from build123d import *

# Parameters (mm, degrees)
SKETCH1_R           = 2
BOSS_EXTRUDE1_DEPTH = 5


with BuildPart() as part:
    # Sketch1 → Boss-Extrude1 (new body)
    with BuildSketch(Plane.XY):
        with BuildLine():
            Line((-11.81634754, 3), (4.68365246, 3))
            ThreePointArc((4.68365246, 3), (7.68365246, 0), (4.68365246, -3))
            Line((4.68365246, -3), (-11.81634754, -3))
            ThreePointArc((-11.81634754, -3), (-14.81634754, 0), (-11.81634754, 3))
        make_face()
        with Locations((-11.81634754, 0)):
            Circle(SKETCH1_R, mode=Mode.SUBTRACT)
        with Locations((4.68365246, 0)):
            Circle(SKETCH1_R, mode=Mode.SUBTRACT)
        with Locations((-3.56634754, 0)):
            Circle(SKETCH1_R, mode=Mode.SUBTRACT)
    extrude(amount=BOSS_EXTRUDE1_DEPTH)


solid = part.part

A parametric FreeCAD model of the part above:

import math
import FreeCAD as App
import Part
import Sketcher
from FreeCAD import Vector
Q = App.Units.Quantity

doc = App.newDocument("Part")
params = doc.addObject("Spreadsheet::Sheet", "Params")
for row, (alias, value) in enumerate([
    ("sketch1_diameter", "4 mm"),
    ("sketch1_radius", "3 mm"),
    ("sketch1_width", "16.5 mm"),
    ("pad1_length", "5 mm"),
], start=1):
    params.set(f"A{row}", alias)
    params.set(f"B{row}", "=" + value)
    params.setAlias(f"B{row}", alias)

body = doc.addObject("PartDesign::Body", "Body")

sketch1 = body.newObject("Sketcher::SketchObject", "Sketch")
sketch1.AttachmentSupport = (doc.getObject("XY_Plane"), [""])
sketch1.MapMode = "FlatFace"
sketch1.addGeometry(Part.LineSegment(Vector(4.7, 3, 0), Vector(-11.8, 3, 0)), False)
sketch1.addGeometry(Part.ArcOfCircle(Part.Circle(Vector(-11.8, 0, 0), Vector(0, 0, 1), 3), math.radians(90), math.radians(270)), False)
sketch1.addGeometry(Part.LineSegment(Vector(-11.8, -3, 0), Vector(4.7, -3, 0)), False)
sketch1.addGeometry(Part.ArcOfCircle(Part.Circle(Vector(4.7, 0, 0), Vector(0, 0, 1), 3), math.radians(-90), math.radians(90)), False)
sketch1.addGeometry(Part.Circle(Vector(4.7, 0, 0), Vector(0, 0, 1), 2), False)
sketch1.addGeometry(Part.Circle(Vector(-3.6, 0, 0), Vector(0, 0, 1), 2), False)
sketch1.addGeometry(Part.Circle(Vector(-11.8, 0, 0), Vector(0, 0, 1), 2), False)
sketch1.addConstraint(Sketcher.Constraint("Tangent", 0, 2, 1, 1))
sketch1.addConstraint(Sketcher.Constraint("Tangent", 1, 2, 2, 1))
sketch1.addConstraint(Sketcher.Constraint("Tangent", 2, 2, 3, 1))
sketch1.addConstraint(Sketcher.Constraint("Tangent", 3, 2, 0, 1))
sketch1.addConstraint(Sketcher.Constraint("Horizontal", 0))
sketch1.addConstraint(Sketcher.Constraint("Horizontal", 2))
sketch1.addConstraint(Sketcher.Constraint("Coincident", 4, 3, 3, 3))
sketch1.addConstraint(Sketcher.Constraint("Coincident", 6, 3, 1, 3))
sketch1.addConstraint(Sketcher.Constraint("Equal", 4, 5))
sketch1.addConstraint(Sketcher.Constraint("Equal", 5, 6))
sketch1.addConstraint(Sketcher.Constraint("PointOnObject", 1, 3, -1))
sketch1.addConstraint(Sketcher.Constraint("PointOnObject", 5, 3, -1))
sketch1.addConstraint(Sketcher.Constraint("Diameter", 4, Q("4 mm")))
sketch1.addConstraint(Sketcher.Constraint("Radius", 1, Q("3 mm")))
sketch1.addConstraint(Sketcher.Constraint("DistanceX", 0, 2, 0, 1, Q("16.5 mm")))
sketch1.addConstraint(Sketcher.Constraint("DistanceX", 1, 3, 5, 3, Q("8.25 mm")))
sketch1.addConstraint(Sketcher.Constraint("DistanceX", 1, 3, -1, 1, Q("11.816348 mm")))
sketch1.setExpression("Constraints[12]", "Params.sketch1_diameter")
sketch1.setExpression("Constraints[13]", "Params.sketch1_radius")
sketch1.setExpression("Constraints[14]", "Params.sketch1_width")
pad1 = body.newObject("PartDesign::Pad", "Pad")
pad1.Profile = sketch1
pad1.setExpression("Length", "Params.pad1_length")

doc.recompute()
